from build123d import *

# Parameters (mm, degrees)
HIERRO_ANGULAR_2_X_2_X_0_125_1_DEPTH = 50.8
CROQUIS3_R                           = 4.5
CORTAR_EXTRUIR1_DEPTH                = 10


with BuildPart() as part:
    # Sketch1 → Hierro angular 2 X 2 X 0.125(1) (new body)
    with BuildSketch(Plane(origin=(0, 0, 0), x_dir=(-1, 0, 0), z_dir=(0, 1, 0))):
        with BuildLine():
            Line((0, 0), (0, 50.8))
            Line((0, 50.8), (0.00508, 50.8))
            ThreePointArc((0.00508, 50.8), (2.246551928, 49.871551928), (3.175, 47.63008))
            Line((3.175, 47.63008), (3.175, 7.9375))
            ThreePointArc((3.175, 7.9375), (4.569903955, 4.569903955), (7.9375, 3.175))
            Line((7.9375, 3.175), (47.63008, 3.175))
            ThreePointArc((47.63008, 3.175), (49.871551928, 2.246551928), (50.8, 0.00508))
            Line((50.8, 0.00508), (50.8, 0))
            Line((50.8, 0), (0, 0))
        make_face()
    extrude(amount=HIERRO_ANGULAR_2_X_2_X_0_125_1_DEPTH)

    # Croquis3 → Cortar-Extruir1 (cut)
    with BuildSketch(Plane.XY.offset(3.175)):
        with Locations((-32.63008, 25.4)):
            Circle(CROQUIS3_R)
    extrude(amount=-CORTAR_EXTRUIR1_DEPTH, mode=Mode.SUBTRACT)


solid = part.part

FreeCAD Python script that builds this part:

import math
import FreeCAD as App
import Part
import Sketcher

doc = App.newDocument("Part")
body = doc.addObject("PartDesign::Body", "Body")

# Sketch on XZ plane
sketch1 = doc.addObject("Sketcher::SketchObject", "Sketch")
body.addObject(sketch1)
sketch1.AttachmentSupport = (doc.XZ_Plane, [""])
sketch1.MapMode = "FlatFace"
sketch1.addGeometry([
    Part.LineSegment(App.Vector(0, 50.8, 0), App.Vector(0, 0, 0)),  # 0
    Part.LineSegment(App.Vector(0, 0, 0), App.Vector(-50.8, 0, 0)),  # 1
    Part.LineSegment(App.Vector(-50.8, 0, 0), App.Vector(-50.8, 0.005, 0)),  # 2
    Part.ArcOfCircle(Part.Circle(App.Vector(-47.63, 0.005, 0), App.Vector(0, 0, 1), 3.17), math.radians(90), math.radians(180)),  # 3
    Part.LineSegment(App.Vector(-47.63, 3.175, 0), App.Vector(-7.938, 3.175, 0)),  # 4
    Part.ArcOfCircle(Part.Circle(App.Vector(-7.938, 7.938, 0), App.Vector(0, 0, 1), 4.763), math.radians(-90), math.radians(0)),  # 5
    Part.LineSegment(App.Vector(-3.175, 7.938, 0), App.Vector(-3.175, 47.63, 0)),  # 6
    Part.ArcOfCircle(Part.Circle(App.Vector(-0.005, 47.63, 0), App.Vector(0, 0, 1), 3.17), math.radians(90), math.radians(180)),  # 7
    Part.LineSegment(App.Vector(-0.005, 50.8, 0), App.Vector(0, 50.8, 0)),  # 8
], False)
sketch1.addConstraint([
    Sketcher.Constraint("Coincident", 0, 2, 1, 1),
    Sketcher.Constraint("Coincident", 1, 2, 2, 1),
    Sketcher.Constraint("Tangent", 2, 2, 3, 2),
    Sketcher.Constraint("Tangent", 3, 1, 4, 1),
    Sketcher.Constraint("Tangent", 4, 2, 5, 1),
    Sketcher.Constraint("Tangent", 5, 2, 6, 1),
    Sketcher.Constraint("Tangent", 6, 2, 7, 2),
    Sketcher.Constraint("Tangent", 7, 1, 8, 1),
    Sketcher.Constraint("Coincident", 8, 2, 0, 1),
    Sketcher.Constraint("Vertical", 0),
    Sketcher.Constraint("Horizontal", 1),
    Sketcher.Constraint("Horizontal", 4),
    Sketcher.Constraint("Vertical", 6),
    Sketcher.Constraint("Coincident", 0, 2, -1, 1),
    Sketcher.Constraint("Equal", 3, 7),
    Sketcher.Constraint("Horizontal", 3, 3, 2, 2),
    Sketcher.Constraint("Equal", 1, 0),
    Sketcher.Constraint("Equal", 8, 2),
    Sketcher.Constraint("Equal", 4, 6),
    Sketcher.Constraint("DistanceX", 1, 2, 1, 1, 50.8),
    Sketcher.Constraint("Radius", 5, 4.7625),
    Sketcher.Constraint("Radius", 3, 3.16992),
    Sketcher.Constraint("DistanceY", -1, 1, 3, 1, 3.175),
])
pad1 = doc.addObject("PartDesign::Pad", "Pad")
body.addObject(pad1)
pad1.Profile = sketch1
pad1.Length = 50.8
pad1.Reversed = True

# Sketch on XY plane
sketch2 = doc.addObject("Sketcher::SketchObject", "Sketch001")
body.addObject(sketch2)
sketch2.AttachmentSupport = (doc.XY_Plane, [""])
sketch2.MapMode = "FlatFace"
sketch2.AttachmentOffset = App.Placement(App.Vector(0, 0, 3.175), App.Rotation())
sketch2.addGeometry(Part.Circle(App.Vector(-32.6, 25.4, 0), App.Vector(0, 0, 1), 4.5), False)
sketch2.addConstraint([
    Sketcher.Constraint("Diameter", 0, 9.0),
    Sketcher.Constraint("DistanceY", -1, 1, 0, 3, 25.4),
    Sketcher.Constraint("DistanceX", 0, 3, -1, 1, 32.63008),
])
pocket1 = doc.addObject("PartDesign::Pocket", "Pocket")
body.addObject(pocket1)
pocket1.Profile = sketch2
pocket1.Length = 10

doc.recompute()
